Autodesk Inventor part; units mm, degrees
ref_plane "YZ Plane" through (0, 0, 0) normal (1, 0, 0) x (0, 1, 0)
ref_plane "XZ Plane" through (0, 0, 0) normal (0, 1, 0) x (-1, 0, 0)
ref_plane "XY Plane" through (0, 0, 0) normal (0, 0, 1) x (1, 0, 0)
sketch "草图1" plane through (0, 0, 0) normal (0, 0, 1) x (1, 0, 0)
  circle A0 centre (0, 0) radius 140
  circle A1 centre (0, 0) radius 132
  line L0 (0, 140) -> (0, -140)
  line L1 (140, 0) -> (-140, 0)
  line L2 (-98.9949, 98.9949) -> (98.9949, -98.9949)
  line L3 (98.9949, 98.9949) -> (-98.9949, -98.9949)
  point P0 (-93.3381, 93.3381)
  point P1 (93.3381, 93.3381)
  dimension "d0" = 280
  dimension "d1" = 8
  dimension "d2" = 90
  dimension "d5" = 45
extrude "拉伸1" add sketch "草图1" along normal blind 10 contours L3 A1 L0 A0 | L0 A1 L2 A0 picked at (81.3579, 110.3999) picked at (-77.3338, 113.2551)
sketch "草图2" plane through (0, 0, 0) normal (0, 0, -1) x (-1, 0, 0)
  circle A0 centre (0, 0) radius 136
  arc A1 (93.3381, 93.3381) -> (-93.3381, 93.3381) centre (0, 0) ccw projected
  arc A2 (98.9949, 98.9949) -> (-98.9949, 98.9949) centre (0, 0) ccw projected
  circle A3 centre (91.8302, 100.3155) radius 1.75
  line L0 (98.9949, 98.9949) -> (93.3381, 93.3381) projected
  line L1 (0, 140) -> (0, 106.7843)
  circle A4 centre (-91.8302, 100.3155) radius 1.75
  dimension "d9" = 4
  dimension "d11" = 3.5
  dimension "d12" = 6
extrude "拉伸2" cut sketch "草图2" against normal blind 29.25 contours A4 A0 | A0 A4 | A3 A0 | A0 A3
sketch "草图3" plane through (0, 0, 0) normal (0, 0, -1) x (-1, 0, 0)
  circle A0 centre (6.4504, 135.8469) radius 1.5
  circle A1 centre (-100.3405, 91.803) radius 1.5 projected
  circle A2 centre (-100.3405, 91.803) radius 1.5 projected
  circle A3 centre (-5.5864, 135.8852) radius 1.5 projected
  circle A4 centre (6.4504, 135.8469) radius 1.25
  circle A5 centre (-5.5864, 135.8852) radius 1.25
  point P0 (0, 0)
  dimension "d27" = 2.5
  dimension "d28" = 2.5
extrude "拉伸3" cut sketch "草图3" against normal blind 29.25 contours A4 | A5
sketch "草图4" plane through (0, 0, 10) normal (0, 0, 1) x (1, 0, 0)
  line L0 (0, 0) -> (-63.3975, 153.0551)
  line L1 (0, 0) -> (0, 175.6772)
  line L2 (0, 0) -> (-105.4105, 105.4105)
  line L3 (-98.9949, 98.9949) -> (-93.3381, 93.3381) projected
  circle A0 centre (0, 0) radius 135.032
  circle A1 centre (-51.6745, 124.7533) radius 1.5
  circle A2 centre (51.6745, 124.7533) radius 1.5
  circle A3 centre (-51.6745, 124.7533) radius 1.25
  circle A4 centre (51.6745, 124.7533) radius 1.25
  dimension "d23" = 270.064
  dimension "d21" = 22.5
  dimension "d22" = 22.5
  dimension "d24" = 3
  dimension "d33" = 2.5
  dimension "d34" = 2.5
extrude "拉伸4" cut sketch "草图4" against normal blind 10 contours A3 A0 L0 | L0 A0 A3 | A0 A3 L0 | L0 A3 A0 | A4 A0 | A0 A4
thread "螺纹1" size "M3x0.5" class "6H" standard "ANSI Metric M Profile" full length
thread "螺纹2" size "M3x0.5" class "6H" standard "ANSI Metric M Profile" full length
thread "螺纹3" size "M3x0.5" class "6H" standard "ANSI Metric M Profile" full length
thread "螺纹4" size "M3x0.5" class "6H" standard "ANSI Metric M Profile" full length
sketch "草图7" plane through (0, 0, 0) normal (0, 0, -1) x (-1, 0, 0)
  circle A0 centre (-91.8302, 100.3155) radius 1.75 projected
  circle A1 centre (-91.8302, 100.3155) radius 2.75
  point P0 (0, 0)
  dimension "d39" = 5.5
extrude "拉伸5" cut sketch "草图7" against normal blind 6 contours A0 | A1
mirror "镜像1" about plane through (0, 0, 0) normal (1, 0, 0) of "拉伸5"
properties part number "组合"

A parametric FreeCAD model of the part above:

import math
import FreeCAD as App
import Part
import Sketcher
from FreeCAD import Vector
Q = App.Units.Quantity

doc = App.newDocument("Part")
body = doc.addObject("PartDesign::Body", "Body")

# Sketch on XY plane
sketch1 = doc.addObject("Sketcher::SketchObject", "Sketch")
body.addObject(sketch1)
sketch1.AttachmentSupport = (doc.XY_Plane, [""])
sketch1.MapMode = "FlatFace"
sketch1.addGeometry([
    Part.LineSegment(Vector(93, 93, 0), Vector(99, 99, 0)),
    Part.ArcOfCircle(Part.Circle(Vector(0, 0, 0), Vector(0, 0, 1), 140), math.radians(45), math.radians(135)),
    Part.LineSegment(Vector(-99, 99, 0), Vector(-93, 93, 0)),
    Part.ArcOfCircle(Part.Circle(Vector(0, 0, 0), Vector(0, 0, 1), 132), math.radians(45), math.radians(135)),
], False)
sketch1.addConstraint([
    Sketcher.Constraint("Coincident", 0, 2, 1, 1),
    Sketcher.Constraint("Coincident", 1, 2, 2, 1),
    Sketcher.Constraint("Coincident", 2, 2, 3, 2),
    Sketcher.Constraint("Coincident", 3, 1, 0, 1),
    Sketcher.Constraint("Coincident", 1, 3, -1, 1),
    Sketcher.Constraint("Coincident", 3, 3, -1, 1),
    Sketcher.Constraint("Perpendicular", 0, 2),
    Sketcher.Constraint("Horizontal", 0, 2, 1, 2),
    Sketcher.Constraint("Horizontal", 2, 2, 3, 1),
    Sketcher.Constraint("Radius", 1, Q("140 mm")),
    Sketcher.Constraint("Distance", 0, Q("8 mm")),
    Sketcher.Constraint("DistanceX", -1, 1, 0, 2, Q("98.995 mm")),
])
pad1 = doc.addObject("PartDesign::Pad", "Pad")
body.addObject(pad1)
pad1.Profile = sketch1
pad1.Length = 10

# Sketch on XY plane
sketch2 = doc.addObject("Sketcher::SketchObject", "Sketch001")
body.addObject(sketch2)
sketch2.AttachmentSupport = (doc.XY_Plane, [""])
sketch2.MapMode = "FlatFace"
sketch2.addGeometry([
    Part.Circle(Vector(91.8, 100.3, 0), Vector(0, 0, 1), 1.8),
    Part.Circle(Vector(-91.8, 100.3, 0), Vector(0, 0, 1), 1.8),
], False)
sketch2.addConstraint([
    Sketcher.Constraint("Equal", 0, 1),
    Sketcher.Constraint("Symmetric", 0, 3, 1, 3, -2),
    Sketcher.Constraint("Diameter", 0, Q("3.5 mm")),
    Sketcher.Constraint("DistanceX", -1, 1, 0, 3, Q("91.8302 mm")),
    Sketcher.Constraint("DistanceY", -1, 1, 0, 3, Q("100.3155 mm")),
])
pocket1 = doc.addObject("PartDesign::Pocket", "Pocket")
body.addObject(pocket1)
pocket1.Profile = sketch2
pocket1.Length = 29.25
pocket1.Reversed = True

# Sketch on XY plane
sketch3 = doc.addObject("Sketcher::SketchObject", "Sketch002")
body.addObject(sketch3)
sketch3.AttachmentSupport = (doc.XY_Plane, [""])
sketch3.MapMode = "FlatFace"
sketch3.addGeometry([
    Part.Circle(Vector(-6.5, 135.8, 0), Vector(0, 0, 1), 1.2),
    Part.Circle(Vector(5.6, 135.9, 0), Vector(0, 0, 1), 1.2),
], False)
sketch3.addConstraint([
    Sketcher.Constraint("Equal", 0, 1),
    Sketcher.Constraint("Diameter", 0, Q("2.5 mm")),
    Sketcher.Constraint("DistanceY", -1, 1, 0, 3, Q("135.847 mm")),
    Sketcher.Constraint("DistanceX", 0, 3, -1, 1, Q("6.4504 mm")),
    Sketcher.Constraint("DistanceX", -1, 1, 1, 3, Q("5.5864 mm")),
    Sketcher.Constraint("DistanceY", -1, 1, 1, 3, Q("135.8852 mm")),
])
pocket2 = doc.addObject("PartDesign::Pocket", "Pocket001")
body.addObject(pocket2)
pocket2.Profile = sketch3
pocket2.Length = 29.25
pocket2.Reversed = True

# Sketch on XY plane
sketch4 = doc.addObject("Sketcher::SketchObject", "Sketch003")
body.addObject(sketch4)
sketch4.AttachmentSupport = (doc.XY_Plane, [""])
sketch4.MapMode = "FlatFace"
sketch4.AttachmentOffset = App.Placement(Vector(0, 0, 10), App.Rotation())
sketch4.addGeometry([
    Part.Circle(Vector(-51.7, 124.8, 0), Vector(0, 0, 1), 1.2),
    Part.Circle(Vector(51.7, 124.8, 0), Vector(0, 0, 1), 1.2),
], False)
sketch4.addConstraint([
    Sketcher.Constraint("Equal", 0, 1),
    Sketcher.Constraint("Symmetric", 0, 3, 1, 3, -2),
    Sketcher.Constraint("Diameter", 0, Q("2.5 mm")),
    Sketcher.Constraint("DistanceX", 0, 3, 1, 3, Q("103.349 mm")),
    Sketcher.Constraint("DistanceY", -1, 1, 0, 3, Q("124.7533 mm")),
])
pocket3 = doc.addObject("PartDesign::Pocket", "Pocket002")
body.addObject(pocket3)
pocket3.Profile = sketch4
pocket3.Length = 10

# Sketch on XY plane
sketch5 = doc.addObject("Sketcher::SketchObject", "Sketch004")
body.addObject(sketch5)
sketch5.AttachmentSupport = (doc.XY_Plane, [""])
sketch5.MapMode = "FlatFace"
sketch5.addGeometry(Part.Circle(Vector(91.8, 100.3, 0), Vector(0, 0, 1), 2.8), False)
sketch5.addConstraint([
    Sketcher.Constraint("Diameter", 0, Q("5.5 mm")),
    Sketcher.Constraint("DistanceX", -1, 1, 0, 3, Q("91.8302 mm")),
    Sketcher.Constraint("DistanceY", -1, 1, 0, 3, Q("100.3155 mm")),
])
pocket4 = doc.addObject("PartDesign::Pocket", "Pocket003")
body.addObject(pocket4)
pocket4.Profile = sketch5
pocket4.Length = 6
pocket4.Reversed = True
doc.recompute()

mirrored = doc.addObject("PartDesign::Mirrored", "Mirrored")
body.addObject(mirrored)
mirrored.Originals = [pocket4]
mirrored.MirrorPlane = (doc.YZ_Plane, [""])
body.Tip = mirrored

doc.recompute()
